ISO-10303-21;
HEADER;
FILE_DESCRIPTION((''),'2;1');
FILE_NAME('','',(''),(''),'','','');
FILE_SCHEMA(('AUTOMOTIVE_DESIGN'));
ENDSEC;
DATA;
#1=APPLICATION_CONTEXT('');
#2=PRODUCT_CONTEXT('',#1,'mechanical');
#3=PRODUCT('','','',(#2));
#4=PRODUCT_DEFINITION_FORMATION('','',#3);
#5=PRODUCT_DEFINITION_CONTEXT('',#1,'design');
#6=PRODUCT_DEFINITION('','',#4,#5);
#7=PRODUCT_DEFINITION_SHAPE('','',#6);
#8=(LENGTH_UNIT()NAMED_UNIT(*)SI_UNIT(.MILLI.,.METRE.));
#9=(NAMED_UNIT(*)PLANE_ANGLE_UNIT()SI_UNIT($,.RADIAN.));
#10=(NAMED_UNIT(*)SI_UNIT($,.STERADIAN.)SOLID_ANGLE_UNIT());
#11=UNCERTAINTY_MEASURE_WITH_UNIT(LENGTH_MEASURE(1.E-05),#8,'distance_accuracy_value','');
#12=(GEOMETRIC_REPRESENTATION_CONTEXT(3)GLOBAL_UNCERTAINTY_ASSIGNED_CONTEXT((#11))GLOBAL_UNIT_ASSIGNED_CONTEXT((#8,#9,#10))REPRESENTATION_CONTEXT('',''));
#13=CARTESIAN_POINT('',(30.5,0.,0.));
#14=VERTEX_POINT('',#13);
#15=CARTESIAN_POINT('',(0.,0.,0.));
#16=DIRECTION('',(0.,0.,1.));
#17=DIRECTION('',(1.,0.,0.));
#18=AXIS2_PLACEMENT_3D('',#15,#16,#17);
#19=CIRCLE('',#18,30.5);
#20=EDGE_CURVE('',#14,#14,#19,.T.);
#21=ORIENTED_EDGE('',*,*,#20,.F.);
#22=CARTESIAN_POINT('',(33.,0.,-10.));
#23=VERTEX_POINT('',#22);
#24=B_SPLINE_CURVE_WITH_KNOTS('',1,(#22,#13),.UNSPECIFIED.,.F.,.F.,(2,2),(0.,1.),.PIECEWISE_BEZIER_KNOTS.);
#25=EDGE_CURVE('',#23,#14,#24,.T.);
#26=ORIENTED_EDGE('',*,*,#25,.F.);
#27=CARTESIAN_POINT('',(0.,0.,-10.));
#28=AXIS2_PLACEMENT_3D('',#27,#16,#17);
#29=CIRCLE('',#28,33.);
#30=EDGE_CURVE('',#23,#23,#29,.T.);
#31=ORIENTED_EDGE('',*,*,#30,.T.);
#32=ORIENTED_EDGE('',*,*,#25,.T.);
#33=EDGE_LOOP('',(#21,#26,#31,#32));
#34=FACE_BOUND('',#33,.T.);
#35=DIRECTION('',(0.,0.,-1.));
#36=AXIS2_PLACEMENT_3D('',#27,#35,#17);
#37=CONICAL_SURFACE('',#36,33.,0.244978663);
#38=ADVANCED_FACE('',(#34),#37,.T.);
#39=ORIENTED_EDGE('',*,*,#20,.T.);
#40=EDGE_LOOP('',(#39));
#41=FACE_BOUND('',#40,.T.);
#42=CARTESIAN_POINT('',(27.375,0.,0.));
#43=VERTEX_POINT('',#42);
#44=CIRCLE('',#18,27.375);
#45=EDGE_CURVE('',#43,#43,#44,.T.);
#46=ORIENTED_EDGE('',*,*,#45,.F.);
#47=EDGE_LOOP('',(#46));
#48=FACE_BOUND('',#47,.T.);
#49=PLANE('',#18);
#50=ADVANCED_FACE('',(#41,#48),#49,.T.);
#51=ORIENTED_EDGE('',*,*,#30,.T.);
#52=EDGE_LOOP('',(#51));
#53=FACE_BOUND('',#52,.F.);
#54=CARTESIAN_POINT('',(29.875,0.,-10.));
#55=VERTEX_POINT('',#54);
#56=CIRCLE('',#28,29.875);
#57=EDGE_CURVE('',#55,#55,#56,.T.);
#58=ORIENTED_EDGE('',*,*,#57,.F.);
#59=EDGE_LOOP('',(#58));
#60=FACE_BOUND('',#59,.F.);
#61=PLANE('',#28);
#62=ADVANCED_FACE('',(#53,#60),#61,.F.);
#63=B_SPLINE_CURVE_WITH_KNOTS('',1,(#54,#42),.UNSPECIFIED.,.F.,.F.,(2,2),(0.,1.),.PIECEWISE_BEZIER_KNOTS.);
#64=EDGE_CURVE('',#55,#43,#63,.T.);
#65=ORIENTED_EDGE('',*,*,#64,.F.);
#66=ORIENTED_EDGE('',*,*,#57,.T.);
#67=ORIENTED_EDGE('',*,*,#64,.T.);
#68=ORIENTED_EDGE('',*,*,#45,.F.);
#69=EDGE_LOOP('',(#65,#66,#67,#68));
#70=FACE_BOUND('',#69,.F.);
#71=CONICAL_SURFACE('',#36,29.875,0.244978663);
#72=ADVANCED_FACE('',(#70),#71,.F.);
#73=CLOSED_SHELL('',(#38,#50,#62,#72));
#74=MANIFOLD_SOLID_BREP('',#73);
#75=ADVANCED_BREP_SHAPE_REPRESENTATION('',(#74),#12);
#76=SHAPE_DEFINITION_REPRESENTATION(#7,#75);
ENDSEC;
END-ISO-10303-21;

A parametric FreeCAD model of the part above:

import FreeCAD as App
import Part
import Sketcher
from FreeCAD import Vector

doc = App.newDocument("Part")
body = doc.addObject("PartDesign::Body", "Body")

# Sketch on XY plane
sketch1 = body.newObject("Sketcher::SketchObject", "Sketch")
sketch1.AttachmentSupport = (doc.getObject("XY_Plane"), [""])
sketch1.MapMode = "FlatFace"
sketch1.AttachmentOffset = App.Placement(Vector(0, 0, -10), App.Rotation())
sketch1.addGeometry(Part.Circle(Vector(0, 0, 0), Vector(0, 0, 1), 33), False)
sketch1.addConstraint([
    Sketcher.Constraint("Coincident", 0, 3, -1, 1),
    Sketcher.Constraint("Diameter", 0, 66.0),
])

# Sketch on XY plane
sketch2 = body.newObject("Sketcher::SketchObject", "Sketch001")
sketch2.AttachmentSupport = (doc.getObject("XY_Plane"), [""])
sketch2.MapMode = "FlatFace"
sketch2.addGeometry(Part.Circle(Vector(0, 0, 0), Vector(0, 0, 1), 30.5), False)
sketch2.addConstraint([
    Sketcher.Constraint("Coincident", 0, 3, -1, 1),
    Sketcher.Constraint("Diameter", 0, 61.0),
])

additiveloft = body.newObject("PartDesign::AdditiveLoft", "AdditiveLoft")
additiveloft.Profile = sketch1
additiveloft.Sections = [sketch2]

# Sketch on XY plane
sketch3 = body.newObject("Sketcher::SketchObject", "Sketch002")
sketch3.AttachmentSupport = (doc.getObject("XY_Plane"), [""])
sketch3.MapMode = "FlatFace"
sketch3.AttachmentOffset = App.Placement(Vector(0, 0, -10), App.Rotation())
sketch3.addGeometry(Part.Circle(Vector(0, 0, 0), Vector(0, 0, 1), 29.875), False)
sketch3.addConstraint([
    Sketcher.Constraint("Coincident", 0, 3, -1, 1),
    Sketcher.Constraint("Diameter", 0, 59.75),
])

# Sketch on XY plane
sketch4 = body.newObject("Sketcher::SketchObject", "Sketch003")
sketch4.AttachmentSupport = (doc.getObject("XY_Plane"), [""])
sketch4.MapMode = "FlatFace"
sketch4.addGeometry(Part.Circle(Vector(0, 0, 0), Vector(0, 0, 1), 27.375), False)
sketch4.addConstraint([
    Sketcher.Constraint("Coincident", 0, 3, -1, 1),
    Sketcher.Constraint("Diameter", 0, 54.75),
])

subtractiveloft = body.newObject("PartDesign::SubtractiveLoft", "SubtractiveLoft")
subtractiveloft.Profile = sketch3
subtractiveloft.Sections = [sketch4]

doc.recompute()
